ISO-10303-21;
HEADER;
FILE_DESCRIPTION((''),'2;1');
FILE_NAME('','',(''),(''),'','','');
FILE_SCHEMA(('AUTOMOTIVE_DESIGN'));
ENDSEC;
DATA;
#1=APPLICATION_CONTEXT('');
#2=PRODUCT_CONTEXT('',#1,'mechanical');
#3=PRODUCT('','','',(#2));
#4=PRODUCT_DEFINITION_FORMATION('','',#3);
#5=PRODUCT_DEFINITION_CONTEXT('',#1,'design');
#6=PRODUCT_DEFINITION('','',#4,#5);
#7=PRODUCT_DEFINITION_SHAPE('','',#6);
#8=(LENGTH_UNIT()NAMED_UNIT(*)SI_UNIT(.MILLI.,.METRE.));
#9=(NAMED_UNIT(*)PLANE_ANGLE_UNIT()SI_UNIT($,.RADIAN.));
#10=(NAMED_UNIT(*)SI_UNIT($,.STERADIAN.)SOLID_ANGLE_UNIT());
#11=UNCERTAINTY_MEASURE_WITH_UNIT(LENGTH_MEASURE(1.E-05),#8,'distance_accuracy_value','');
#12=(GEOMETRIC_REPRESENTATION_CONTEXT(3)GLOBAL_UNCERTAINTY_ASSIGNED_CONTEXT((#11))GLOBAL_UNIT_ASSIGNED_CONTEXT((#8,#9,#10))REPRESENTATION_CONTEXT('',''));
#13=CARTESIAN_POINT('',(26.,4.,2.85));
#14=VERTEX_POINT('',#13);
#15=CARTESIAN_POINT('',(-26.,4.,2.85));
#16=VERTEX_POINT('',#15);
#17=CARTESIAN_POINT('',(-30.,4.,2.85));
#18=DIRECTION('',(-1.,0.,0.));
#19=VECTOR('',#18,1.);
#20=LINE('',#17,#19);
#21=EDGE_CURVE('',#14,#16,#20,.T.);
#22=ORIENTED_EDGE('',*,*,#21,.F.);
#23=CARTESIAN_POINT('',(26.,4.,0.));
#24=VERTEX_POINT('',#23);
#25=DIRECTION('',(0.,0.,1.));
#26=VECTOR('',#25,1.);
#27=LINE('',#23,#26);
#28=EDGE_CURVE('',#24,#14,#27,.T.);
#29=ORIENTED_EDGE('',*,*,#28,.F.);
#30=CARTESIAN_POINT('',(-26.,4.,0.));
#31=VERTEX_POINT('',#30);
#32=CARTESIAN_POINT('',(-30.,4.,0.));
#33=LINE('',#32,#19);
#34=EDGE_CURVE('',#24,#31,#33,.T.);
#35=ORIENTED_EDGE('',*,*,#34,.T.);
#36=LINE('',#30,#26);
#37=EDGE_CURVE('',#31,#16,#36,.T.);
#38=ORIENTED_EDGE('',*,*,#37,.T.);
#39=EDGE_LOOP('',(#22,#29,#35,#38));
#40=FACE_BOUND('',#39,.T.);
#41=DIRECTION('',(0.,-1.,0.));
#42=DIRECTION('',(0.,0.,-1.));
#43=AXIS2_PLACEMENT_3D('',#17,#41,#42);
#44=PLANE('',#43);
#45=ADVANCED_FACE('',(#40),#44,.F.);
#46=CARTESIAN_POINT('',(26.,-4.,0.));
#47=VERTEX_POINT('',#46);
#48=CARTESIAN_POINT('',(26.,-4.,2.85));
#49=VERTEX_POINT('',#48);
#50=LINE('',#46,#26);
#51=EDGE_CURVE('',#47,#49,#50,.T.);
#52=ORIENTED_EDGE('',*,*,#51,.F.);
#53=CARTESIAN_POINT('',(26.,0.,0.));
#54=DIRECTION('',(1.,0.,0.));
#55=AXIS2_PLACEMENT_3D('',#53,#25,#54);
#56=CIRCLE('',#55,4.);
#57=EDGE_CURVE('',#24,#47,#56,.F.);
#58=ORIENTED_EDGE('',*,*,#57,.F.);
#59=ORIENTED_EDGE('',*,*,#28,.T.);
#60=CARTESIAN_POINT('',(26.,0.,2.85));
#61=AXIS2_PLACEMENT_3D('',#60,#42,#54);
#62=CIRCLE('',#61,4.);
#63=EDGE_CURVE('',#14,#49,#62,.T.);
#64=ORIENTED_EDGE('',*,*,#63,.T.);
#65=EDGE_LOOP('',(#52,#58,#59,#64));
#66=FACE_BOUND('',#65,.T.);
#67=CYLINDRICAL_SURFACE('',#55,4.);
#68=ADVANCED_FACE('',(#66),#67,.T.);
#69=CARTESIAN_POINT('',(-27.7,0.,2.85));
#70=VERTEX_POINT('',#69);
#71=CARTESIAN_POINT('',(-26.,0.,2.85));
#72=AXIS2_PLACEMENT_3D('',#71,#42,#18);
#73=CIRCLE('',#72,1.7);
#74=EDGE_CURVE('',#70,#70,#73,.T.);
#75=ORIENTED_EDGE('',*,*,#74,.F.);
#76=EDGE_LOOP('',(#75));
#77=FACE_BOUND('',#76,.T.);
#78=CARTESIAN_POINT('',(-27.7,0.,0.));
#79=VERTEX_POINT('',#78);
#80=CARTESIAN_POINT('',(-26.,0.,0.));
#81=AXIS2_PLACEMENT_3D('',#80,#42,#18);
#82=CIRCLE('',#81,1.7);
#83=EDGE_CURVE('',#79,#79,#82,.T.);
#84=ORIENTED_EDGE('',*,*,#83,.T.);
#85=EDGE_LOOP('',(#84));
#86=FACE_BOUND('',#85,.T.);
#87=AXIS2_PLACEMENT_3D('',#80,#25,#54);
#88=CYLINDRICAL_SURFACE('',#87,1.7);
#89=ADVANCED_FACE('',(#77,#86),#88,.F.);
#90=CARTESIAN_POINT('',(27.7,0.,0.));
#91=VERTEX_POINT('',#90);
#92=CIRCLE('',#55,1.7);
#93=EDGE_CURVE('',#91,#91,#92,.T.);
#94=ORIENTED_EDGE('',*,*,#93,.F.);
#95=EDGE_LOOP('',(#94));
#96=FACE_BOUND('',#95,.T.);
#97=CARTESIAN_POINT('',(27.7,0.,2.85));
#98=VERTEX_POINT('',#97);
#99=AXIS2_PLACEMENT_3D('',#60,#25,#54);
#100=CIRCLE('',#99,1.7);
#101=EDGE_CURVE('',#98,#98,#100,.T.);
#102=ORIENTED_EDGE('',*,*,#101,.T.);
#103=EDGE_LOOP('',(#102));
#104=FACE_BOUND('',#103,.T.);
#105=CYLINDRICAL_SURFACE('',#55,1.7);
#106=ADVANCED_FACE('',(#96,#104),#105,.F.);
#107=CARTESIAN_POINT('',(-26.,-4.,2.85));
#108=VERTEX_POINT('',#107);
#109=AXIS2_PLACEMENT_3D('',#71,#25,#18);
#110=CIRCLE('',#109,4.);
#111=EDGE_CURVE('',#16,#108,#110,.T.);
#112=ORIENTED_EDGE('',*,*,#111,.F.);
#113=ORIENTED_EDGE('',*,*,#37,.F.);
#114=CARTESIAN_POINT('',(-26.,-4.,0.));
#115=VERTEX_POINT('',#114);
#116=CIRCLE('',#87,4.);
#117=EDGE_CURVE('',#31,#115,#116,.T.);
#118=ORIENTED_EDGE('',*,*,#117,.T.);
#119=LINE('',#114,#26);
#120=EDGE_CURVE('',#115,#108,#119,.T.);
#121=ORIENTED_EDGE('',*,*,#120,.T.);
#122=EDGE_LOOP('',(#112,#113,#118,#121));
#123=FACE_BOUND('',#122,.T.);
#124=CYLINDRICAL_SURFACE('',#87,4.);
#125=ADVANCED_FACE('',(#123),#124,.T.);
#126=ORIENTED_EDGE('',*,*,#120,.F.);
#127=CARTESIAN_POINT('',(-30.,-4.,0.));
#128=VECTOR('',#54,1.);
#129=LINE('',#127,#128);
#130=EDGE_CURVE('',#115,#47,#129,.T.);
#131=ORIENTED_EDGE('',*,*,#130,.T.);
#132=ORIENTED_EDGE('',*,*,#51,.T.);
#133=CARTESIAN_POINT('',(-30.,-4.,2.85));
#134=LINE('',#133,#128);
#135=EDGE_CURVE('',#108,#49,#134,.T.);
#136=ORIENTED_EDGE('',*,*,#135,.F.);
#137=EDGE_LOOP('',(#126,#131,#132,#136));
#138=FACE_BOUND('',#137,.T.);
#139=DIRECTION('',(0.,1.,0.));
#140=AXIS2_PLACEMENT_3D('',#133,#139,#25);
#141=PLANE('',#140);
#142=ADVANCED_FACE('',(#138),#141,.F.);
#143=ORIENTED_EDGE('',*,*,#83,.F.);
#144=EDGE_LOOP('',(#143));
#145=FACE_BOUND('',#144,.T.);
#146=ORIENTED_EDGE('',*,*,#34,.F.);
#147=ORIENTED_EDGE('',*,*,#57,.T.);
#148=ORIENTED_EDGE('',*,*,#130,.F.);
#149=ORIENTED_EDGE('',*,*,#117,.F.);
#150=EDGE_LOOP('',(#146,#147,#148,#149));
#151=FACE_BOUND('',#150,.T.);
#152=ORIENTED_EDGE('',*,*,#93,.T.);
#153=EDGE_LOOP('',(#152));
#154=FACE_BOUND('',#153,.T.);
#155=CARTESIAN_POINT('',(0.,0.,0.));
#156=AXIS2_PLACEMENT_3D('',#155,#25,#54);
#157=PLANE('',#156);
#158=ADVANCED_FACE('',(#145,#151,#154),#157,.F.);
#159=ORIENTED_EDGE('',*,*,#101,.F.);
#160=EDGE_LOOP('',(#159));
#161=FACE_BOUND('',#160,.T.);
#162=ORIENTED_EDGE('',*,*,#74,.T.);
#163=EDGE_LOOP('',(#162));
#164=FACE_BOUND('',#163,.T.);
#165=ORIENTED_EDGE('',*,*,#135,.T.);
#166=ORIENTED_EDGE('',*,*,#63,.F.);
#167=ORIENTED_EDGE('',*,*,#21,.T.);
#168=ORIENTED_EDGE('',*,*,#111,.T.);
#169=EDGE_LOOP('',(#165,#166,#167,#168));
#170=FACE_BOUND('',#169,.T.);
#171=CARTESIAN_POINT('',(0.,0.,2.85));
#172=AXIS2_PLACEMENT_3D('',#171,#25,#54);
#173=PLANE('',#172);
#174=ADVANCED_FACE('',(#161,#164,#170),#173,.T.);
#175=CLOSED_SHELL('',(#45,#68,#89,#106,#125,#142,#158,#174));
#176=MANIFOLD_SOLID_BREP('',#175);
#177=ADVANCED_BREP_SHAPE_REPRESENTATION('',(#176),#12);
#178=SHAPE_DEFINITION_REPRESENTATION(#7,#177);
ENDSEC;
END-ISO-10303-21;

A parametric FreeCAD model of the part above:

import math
import FreeCAD as App
import Part
import Sketcher


def add_polygon(sketch, points):
    """Adds a closed chain of lines whose ends are joined by coincident constraints."""
    first, n = sketch.GeometryCount, len(points)
    for a, b in zip(points, points[1:] + points[:1]):
        sketch.addGeometry(Part.LineSegment(App.Vector(*a, 0), App.Vector(*b, 0)), False)
    for i in range(n):
        sketch.addConstraint(Sketcher.Constraint("Coincident", first + i, 2, first + (i + 1) % n, 1))

doc = App.newDocument("Part")
body = doc.addObject("PartDesign::Body", "Body")

# Sketch on XY plane
sketch1 = body.newObject("Sketcher::SketchObject", "Sketch")
sketch1.AttachmentSupport = (doc.getObject("XY_Plane"), [""])
sketch1.MapMode = "FlatFace"
add_polygon(sketch1, [(-30, 4), (-30, -4), (30, -4), (30, 4)])  # lines 0-3
sketch1.addConstraint([
    Sketcher.Constraint("Vertical", 0),
    Sketcher.Constraint("Horizontal", 1),
    Sketcher.Constraint("Vertical", 2),
    Sketcher.Constraint("Horizontal", 3),
    Sketcher.Constraint("Symmetric", 0, 2, 2, 2, -1, 1),
    Sketcher.Constraint("DistanceX", 1, 1, 1, 2, 60.0),
    Sketcher.Constraint("DistanceY", 0, 2, 0, 1, 8.0),
])
pad1 = body.newObject("PartDesign::Pad", "Pad")
pad1.Profile = sketch1
pad1.Length = 2.85

# Sketch on XY plane
sketch2 = body.newObject("Sketcher::SketchObject", "Sketch001")
sketch2.AttachmentSupport = (doc.getObject("XY_Plane"), [""])
sketch2.MapMode = "FlatFace"
sketch2.AttachmentOffset = App.Placement(App.Vector(0, 0, 2.85), App.Rotation())
sketch2.addGeometry([
    Part.LineSegment(App.Vector(26, -4, 0), App.Vector(31, -4, 0)),
    Part.LineSegment(App.Vector(31, -4, 0), App.Vector(31, 4, 0)),
    Part.LineSegment(App.Vector(31, 4, 0), App.Vector(26, 4, 0)),
    Part.ArcOfCircle(Part.Circle(App.Vector(26, 0, 0), App.Vector(0, 0, 1), 4), math.radians(-90), math.radians(90)),
], False)
sketch2.addConstraint([
    Sketcher.Constraint("Coincident", 0, 2, 1, 1),
    Sketcher.Constraint("Coincident", 1, 2, 2, 1),
    Sketcher.Constraint("Tangent", 2, 2, 3, 2),
    Sketcher.Constraint("Tangent", 3, 1, 0, 1),
    Sketcher.Constraint("Horizontal", 0),
    Sketcher.Constraint("Vertical", 1),
    Sketcher.Constraint("Horizontal", 2),
    Sketcher.Constraint("PointOnObject", 3, 3, -1),
    Sketcher.Constraint("Radius", 3, 4.0),
    Sketcher.Constraint("DistanceX", 0, 1, 0, 2, 5.0),
    Sketcher.Constraint("DistanceX", -1, 1, 3, 3, 26.0),
])
pocket1 = body.newObject("PartDesign::Pocket", "Pocket")
pocket1.Profile = sketch2
pocket1.Type = "ThroughAll"

# Sketch on XY plane
sketch3 = body.newObject("Sketcher::SketchObject", "Sketch002")
sketch3.AttachmentSupport = (doc.getObject("XY_Plane"), [""])
sketch3.MapMode = "FlatFace"
sketch3.AttachmentOffset = App.Placement(App.Vector(0, 0, 2.85), App.Rotation())
sketch3.addGeometry(Part.Circle(App.Vector(26, 0, 0), App.Vector(0, 0, 1), 1.7), False)
sketch3.addConstraint([
    Sketcher.Constraint("PointOnObject", 0, 3, -1),
    Sketcher.Constraint("Diameter", 0, 3.4),
    Sketcher.Constraint("DistanceX", -1, 1, 0, 3, 26.0),
])
pocket2 = body.newObject("PartDesign::Pocket", "Pocket001")
pocket2.Profile = sketch3
pocket2.Type = "ThroughAll"
doc.recompute()

mirrored = body.newObject("PartDesign::Mirrored", "Mirrored")
mirrored.Originals = [pocket1, pocket2]
mirrored.MirrorPlane = (doc.getObject("YZ_Plane"), [""])
body.Tip = mirrored

doc.recompute()
